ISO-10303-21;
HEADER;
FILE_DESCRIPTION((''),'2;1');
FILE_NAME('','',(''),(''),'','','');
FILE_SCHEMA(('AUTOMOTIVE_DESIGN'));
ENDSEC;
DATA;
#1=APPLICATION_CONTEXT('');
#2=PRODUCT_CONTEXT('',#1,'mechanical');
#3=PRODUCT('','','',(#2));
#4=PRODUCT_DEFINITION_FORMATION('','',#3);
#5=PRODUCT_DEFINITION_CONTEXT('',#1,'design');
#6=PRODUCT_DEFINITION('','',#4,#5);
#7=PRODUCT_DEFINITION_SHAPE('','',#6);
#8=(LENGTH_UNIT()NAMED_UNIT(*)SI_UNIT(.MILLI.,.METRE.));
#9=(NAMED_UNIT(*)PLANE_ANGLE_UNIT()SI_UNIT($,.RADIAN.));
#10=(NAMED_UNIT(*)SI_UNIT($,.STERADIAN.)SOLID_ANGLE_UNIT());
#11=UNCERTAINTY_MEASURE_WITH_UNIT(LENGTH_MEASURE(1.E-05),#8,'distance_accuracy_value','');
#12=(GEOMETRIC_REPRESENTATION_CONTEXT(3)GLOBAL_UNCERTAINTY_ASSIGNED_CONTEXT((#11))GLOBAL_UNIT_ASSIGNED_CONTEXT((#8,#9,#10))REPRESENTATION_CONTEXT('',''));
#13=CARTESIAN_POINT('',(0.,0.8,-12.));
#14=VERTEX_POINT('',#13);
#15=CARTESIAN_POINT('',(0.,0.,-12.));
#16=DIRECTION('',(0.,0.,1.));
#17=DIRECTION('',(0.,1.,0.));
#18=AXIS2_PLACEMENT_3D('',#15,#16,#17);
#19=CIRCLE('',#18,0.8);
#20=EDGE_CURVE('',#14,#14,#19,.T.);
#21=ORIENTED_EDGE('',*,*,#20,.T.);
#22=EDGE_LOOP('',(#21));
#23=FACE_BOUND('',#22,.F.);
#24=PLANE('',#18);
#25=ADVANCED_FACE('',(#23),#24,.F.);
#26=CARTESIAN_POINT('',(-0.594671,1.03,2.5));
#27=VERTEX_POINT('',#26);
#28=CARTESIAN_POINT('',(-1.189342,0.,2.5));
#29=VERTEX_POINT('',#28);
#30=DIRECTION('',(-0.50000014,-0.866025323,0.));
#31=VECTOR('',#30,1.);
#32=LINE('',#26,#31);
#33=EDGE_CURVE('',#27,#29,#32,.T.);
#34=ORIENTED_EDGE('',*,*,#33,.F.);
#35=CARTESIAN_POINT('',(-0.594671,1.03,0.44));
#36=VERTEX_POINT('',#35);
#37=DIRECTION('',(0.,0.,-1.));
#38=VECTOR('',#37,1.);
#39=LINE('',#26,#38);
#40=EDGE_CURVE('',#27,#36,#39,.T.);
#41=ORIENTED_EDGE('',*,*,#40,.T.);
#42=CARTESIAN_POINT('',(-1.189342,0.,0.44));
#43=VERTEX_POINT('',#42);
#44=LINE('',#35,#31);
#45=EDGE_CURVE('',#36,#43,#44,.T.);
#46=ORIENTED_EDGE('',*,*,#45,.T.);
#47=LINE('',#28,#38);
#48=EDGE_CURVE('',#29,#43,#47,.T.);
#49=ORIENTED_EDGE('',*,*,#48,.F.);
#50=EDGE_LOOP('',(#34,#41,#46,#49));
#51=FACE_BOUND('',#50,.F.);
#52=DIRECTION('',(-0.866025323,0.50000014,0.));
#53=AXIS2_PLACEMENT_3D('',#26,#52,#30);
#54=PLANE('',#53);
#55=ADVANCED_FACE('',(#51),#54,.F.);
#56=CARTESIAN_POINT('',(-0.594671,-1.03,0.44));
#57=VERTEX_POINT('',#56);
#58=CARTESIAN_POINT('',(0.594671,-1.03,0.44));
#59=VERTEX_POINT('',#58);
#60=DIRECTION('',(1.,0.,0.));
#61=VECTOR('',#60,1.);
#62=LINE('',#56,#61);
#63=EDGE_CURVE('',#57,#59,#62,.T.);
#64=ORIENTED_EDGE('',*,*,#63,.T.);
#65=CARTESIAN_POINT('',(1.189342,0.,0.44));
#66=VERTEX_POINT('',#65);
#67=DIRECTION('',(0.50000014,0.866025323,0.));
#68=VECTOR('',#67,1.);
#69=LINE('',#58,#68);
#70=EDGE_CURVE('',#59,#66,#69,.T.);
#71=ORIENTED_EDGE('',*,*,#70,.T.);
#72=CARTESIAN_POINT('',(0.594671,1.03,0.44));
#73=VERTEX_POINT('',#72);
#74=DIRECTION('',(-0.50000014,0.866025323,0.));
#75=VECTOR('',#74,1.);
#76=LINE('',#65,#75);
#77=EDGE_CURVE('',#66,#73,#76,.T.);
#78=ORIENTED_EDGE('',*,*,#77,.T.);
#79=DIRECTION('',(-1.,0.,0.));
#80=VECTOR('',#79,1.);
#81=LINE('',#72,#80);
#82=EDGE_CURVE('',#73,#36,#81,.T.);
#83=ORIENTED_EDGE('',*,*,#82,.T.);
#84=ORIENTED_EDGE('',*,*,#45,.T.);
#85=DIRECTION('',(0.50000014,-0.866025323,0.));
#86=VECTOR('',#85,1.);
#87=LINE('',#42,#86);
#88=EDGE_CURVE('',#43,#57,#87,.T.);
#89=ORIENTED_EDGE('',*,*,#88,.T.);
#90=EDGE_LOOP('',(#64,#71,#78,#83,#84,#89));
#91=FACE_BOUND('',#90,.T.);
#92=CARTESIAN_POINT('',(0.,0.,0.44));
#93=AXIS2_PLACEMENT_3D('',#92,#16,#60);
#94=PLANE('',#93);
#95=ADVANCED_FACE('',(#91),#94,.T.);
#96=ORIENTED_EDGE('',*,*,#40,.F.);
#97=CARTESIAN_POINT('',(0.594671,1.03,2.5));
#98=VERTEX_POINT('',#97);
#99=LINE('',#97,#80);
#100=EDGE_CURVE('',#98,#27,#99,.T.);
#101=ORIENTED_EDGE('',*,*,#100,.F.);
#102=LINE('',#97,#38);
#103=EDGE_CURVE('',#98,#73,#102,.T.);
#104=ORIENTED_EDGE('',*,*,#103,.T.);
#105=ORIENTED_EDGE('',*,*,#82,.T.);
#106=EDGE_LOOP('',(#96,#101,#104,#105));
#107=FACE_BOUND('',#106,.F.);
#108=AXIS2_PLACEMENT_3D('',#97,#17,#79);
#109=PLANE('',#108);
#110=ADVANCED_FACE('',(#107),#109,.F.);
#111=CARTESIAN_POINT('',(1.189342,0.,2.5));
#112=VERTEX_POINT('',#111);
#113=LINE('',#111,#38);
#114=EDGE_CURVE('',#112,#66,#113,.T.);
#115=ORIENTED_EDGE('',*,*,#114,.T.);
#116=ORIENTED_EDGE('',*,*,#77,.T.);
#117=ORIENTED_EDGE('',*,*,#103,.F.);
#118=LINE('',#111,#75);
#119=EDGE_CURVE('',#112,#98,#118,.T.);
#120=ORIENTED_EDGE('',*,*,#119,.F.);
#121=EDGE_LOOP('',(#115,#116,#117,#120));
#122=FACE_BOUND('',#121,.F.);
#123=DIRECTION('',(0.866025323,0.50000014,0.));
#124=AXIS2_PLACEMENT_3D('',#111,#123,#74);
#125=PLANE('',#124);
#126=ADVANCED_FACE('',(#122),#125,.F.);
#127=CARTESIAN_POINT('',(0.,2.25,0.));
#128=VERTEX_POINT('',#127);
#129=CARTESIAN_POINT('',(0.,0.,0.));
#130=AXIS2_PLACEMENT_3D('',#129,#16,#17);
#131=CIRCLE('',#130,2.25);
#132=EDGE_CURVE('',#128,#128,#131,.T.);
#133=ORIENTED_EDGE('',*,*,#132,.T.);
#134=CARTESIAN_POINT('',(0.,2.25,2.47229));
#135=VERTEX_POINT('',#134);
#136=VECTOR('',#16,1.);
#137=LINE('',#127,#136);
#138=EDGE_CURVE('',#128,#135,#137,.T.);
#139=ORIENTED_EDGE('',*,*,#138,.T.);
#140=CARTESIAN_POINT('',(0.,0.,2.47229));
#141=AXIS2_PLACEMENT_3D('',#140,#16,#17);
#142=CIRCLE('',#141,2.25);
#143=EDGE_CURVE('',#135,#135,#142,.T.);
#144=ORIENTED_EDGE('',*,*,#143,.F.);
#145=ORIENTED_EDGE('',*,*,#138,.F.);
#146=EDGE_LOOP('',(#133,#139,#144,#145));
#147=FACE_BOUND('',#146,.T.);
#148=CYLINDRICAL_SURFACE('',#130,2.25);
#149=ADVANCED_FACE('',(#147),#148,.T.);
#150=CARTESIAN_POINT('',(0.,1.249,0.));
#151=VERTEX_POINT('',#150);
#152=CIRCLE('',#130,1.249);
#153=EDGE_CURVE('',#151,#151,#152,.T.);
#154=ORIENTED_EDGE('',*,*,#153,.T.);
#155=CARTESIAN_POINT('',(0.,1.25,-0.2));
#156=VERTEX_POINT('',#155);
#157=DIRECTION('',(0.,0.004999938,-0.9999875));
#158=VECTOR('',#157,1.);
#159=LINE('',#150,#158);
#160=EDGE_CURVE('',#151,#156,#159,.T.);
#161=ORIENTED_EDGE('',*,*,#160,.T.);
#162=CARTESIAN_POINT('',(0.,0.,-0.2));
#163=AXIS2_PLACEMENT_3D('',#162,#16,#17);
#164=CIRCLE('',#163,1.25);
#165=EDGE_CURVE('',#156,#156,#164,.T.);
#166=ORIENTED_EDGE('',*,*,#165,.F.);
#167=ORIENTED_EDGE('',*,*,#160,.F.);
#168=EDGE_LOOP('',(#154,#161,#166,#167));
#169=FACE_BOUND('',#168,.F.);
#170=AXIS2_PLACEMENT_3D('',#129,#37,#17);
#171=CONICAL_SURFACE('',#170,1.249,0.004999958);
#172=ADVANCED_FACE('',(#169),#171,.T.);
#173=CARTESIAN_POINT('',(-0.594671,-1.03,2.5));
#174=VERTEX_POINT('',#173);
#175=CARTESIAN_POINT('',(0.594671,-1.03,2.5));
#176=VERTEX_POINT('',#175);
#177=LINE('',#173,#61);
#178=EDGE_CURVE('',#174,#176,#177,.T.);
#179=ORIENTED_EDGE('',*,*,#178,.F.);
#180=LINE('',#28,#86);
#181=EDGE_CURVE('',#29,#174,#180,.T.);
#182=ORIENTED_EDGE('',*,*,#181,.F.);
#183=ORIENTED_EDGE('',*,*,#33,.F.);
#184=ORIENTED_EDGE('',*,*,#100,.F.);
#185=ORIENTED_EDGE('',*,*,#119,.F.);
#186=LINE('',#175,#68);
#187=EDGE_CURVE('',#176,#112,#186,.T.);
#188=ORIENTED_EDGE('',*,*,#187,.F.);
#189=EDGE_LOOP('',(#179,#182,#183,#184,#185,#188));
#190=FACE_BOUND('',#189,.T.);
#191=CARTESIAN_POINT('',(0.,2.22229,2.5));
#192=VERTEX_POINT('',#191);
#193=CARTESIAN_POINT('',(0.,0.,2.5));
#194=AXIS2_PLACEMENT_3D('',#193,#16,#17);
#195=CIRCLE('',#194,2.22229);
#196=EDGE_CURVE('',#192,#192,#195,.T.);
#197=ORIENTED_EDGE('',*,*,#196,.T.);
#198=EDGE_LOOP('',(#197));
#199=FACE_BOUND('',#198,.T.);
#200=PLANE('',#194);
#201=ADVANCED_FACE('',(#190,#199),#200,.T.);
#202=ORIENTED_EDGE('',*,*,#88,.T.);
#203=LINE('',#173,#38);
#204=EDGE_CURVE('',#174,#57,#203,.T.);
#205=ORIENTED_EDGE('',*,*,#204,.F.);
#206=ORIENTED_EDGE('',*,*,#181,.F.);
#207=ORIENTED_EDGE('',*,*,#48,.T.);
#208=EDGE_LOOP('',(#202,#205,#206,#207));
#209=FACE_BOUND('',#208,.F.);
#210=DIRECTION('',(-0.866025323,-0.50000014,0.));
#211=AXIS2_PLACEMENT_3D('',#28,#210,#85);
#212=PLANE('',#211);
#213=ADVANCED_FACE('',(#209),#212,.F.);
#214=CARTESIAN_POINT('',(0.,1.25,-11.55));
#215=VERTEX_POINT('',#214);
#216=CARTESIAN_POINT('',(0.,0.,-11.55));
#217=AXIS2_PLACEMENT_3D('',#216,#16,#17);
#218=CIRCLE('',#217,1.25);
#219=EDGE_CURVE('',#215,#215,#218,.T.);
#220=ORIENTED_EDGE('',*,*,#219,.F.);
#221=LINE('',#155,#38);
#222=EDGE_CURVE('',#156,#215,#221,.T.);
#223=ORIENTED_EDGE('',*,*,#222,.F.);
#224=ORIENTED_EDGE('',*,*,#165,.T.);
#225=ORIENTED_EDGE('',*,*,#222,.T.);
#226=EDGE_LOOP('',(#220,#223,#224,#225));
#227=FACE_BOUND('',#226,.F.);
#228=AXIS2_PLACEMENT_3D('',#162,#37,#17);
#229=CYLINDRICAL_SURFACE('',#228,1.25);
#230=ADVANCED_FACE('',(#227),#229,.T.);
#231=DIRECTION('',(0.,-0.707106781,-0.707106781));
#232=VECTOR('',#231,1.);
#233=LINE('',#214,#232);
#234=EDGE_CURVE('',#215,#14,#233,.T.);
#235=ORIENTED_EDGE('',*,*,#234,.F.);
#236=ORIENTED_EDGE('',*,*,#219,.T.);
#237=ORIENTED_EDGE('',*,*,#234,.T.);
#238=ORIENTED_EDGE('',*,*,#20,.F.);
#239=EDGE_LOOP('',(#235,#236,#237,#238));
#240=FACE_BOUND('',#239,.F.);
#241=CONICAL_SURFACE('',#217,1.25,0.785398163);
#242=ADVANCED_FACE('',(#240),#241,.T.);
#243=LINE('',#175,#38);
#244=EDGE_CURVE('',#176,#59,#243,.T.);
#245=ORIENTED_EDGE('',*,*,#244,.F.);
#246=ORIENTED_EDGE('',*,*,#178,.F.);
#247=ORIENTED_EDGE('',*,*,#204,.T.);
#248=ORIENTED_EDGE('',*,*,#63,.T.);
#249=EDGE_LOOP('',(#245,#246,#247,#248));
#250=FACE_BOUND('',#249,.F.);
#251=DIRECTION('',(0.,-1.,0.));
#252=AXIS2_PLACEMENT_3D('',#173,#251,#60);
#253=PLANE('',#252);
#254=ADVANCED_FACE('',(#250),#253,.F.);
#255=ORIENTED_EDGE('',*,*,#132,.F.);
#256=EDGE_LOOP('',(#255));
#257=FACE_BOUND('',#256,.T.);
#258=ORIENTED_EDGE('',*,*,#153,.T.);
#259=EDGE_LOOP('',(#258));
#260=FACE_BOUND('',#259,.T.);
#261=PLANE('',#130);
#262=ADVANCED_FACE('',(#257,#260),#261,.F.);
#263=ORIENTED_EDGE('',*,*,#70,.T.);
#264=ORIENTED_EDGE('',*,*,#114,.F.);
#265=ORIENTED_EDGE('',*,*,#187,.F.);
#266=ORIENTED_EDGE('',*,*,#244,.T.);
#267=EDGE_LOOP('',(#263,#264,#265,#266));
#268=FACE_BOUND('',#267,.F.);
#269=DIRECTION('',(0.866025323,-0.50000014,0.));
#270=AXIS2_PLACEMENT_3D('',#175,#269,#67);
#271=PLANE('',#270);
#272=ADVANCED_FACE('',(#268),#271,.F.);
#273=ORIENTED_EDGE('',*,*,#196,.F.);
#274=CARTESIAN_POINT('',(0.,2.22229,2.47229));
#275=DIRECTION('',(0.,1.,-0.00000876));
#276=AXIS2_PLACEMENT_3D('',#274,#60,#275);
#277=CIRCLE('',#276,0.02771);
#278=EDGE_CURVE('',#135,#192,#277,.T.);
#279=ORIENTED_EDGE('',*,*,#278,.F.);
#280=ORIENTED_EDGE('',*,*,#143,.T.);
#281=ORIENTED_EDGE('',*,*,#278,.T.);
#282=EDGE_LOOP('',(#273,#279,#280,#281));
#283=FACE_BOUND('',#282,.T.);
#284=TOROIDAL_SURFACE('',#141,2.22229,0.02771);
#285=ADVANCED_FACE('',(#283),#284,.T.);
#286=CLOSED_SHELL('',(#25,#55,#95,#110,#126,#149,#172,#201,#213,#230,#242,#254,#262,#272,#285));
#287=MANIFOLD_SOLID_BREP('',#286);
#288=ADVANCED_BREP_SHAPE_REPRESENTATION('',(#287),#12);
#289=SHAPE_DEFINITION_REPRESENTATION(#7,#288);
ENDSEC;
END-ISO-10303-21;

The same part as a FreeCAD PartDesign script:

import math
import FreeCAD as App
import Part
import Sketcher

V = App.Vector
Q = App.Units.Quantity


def add_polygon(sketch, points):
    """Adds a closed chain of lines whose ends are joined by coincident constraints."""
    first, n = sketch.GeometryCount, len(points)
    for a, b in zip(points, points[1:] + points[:1]):
        sketch.addGeometry(Part.LineSegment(App.Vector(*a, 0), App.Vector(*b, 0)), False)
    for i in range(n):
        sketch.addConstraint(Sketcher.Constraint("Coincident", first + i, 2, first + (i + 1) % n, 1))

doc = App.newDocument("Part")
params = doc.addObject("Spreadsheet::Sheet", "Params")
for row, (alias, value) in enumerate([
    ("sketch1_width", "0.8 mm"),
    ("sketch1_height", "14.5 mm"),
    ("sketch1_height2", "11.35 mm"),
    ("revolution_angle", "360 deg"),
    ("pocket1_length", "2.06 mm"),
], start=1):
    params.set(f"A{row}", alias)
    params.set(f"B{row}", "=" + value)
    params.setAlias(f"B{row}", alias)

body = doc.addObject("PartDesign::Body", "Body")

# Sketch on YZ plane
sketch1 = doc.addObject("Sketcher::SketchObject", "Sketch")
body.addObject(sketch1)
sketch1.AttachmentSupport = (doc.YZ_Plane, [""])
sketch1.MapMode = "FlatFace"
sketch1.addGeometry(Part.LineSegment(V(1.249, 0, 0), V(2.25, 0, 0)), False)
sketch1.addGeometry(Part.LineSegment(V(2.25, 0, 0), V(2.25, 2.472, 0)), False)
sketch1.addGeometry(Part.ArcOfCircle(Part.Circle(V(2.222, 2.472, 0), V(0, 0, 1), 0.028), math.radians(0), math.radians(90)), False)
sketch1.addGeometry(Part.LineSegment(V(2.222, 2.5, 0), V(0, 2.5, 0)), False)
sketch1.addGeometry(Part.LineSegment(V(0, 2.5, 0), V(0, -12, 0)), False)
sketch1.addGeometry(Part.LineSegment(V(0, -12, 0), V(0.8, -12, 0)), False)
sketch1.addGeometry(Part.LineSegment(V(0.8, -12, 0), V(1.25, -11.55, 0)), False)
sketch1.addGeometry(Part.LineSegment(V(1.25, -11.55, 0), V(1.25, -0.2, 0)), False)
sketch1.addGeometry(Part.LineSegment(V(1.25, -0.2, 0), V(1.249, 0, 0)), False)
sketch1.addConstraint(Sketcher.Constraint("Coincident", 0, 2, 1, 1))
sketch1.addConstraint(Sketcher.Constraint("Coincident", 1, 2, 2, 1))
sketch1.addConstraint(Sketcher.Constraint("Coincident", 2, 2, 3, 1))
sketch1.addConstraint(Sketcher.Constraint("Coincident", 3, 2, 4, 1))
sketch1.addConstraint(Sketcher.Constraint("Coincident", 4, 2, 5, 1))
sketch1.addConstraint(Sketcher.Constraint("Coincident", 5, 2, 6, 1))
sketch1.addConstraint(Sketcher.Constraint("Coincident", 6, 2, 7, 1))
sketch1.addConstraint(Sketcher.Constraint("Coincident", 7, 2, 8, 1))
sketch1.addConstraint(Sketcher.Constraint("Coincident", 8, 2, 0, 1))
sketch1.addConstraint(Sketcher.Constraint("Horizontal", 0))
sketch1.addConstraint(Sketcher.Constraint("Vertical", 1))
sketch1.addConstraint(Sketcher.Constraint("Horizontal", 3))
sketch1.addConstraint(Sketcher.Constraint("Vertical", 4))
sketch1.addConstraint(Sketcher.Constraint("Horizontal", 5))
sketch1.addConstraint(Sketcher.Constraint("Vertical", 7))
sketch1.addConstraint(Sketcher.Constraint("PointOnObject", 0, 2, -1))
sketch1.addConstraint(Sketcher.Constraint("PointOnObject", 3, 2, -2))
sketch1.addConstraint(Sketcher.Constraint("Horizontal", 2, 3, 1, 2))
sketch1.addConstraint(Sketcher.Constraint("Angle", 6, Q("45 deg")))
sketch1.addConstraint(Sketcher.Constraint("DistanceX", 5, 1, 5, 2, Q("0.8 mm")))
sketch1.addConstraint(Sketcher.Constraint("DistanceY", 4, 2, 4, 1, Q("14.5 mm")))
sketch1.addConstraint(Sketcher.Constraint("DistanceY", 4, 2, -1, 1, Q("12 mm")))
sketch1.addConstraint(Sketcher.Constraint("DistanceX", 6, 2, 0, 2, Q("1 mm")))
sketch1.addConstraint(Sketcher.Constraint("DistanceY", 7, 1, 7, 2, Q("11.35 mm")))
sketch1.addConstraint(Sketcher.Constraint("DistanceY", 7, 2, -1, 1, Q("0.2 mm")))
sketch1.addConstraint(Sketcher.Constraint("DistanceX", 0, 1, 0, 2, Q("1.001 mm")))
sketch1.addConstraint(Sketcher.Constraint("Radius", 2, Q("0.02771 mm")))
sketch1.addConstraint(Sketcher.Constraint("DistanceX", 3, 2, 3, 1, Q("2.22229 mm")))
sketch1.setExpression("Constraints[19]", "Params.sketch1_width")
sketch1.setExpression("Constraints[20]", "Params.sketch1_height")
sketch1.setExpression("Constraints[23]", "Params.sketch1_height2")
revolution = doc.addObject("PartDesign::Revolution", "Revolution")
body.addObject(revolution)
revolution.Profile = sketch1
revolution.ReferenceAxis = (sketch1, ["V_Axis"])
revolution.setExpression("Angle", "Params.revolution_angle")

# Sketch on XY plane
sketch2 = doc.addObject("Sketcher::SketchObject", "Sketch001")
body.addObject(sketch2)
sketch2.AttachmentSupport = (doc.XY_Plane, [""])
sketch2.MapMode = "FlatFace"
sketch2.AttachmentOffset = App.Placement(V(0, 0, 2.5), App.Rotation())
add_polygon(sketch2, [(1.2, 0), (0.6, 1), (-0.6, 1), (-1.2, 0), (-0.6, -1), (0.6, -1)])  # lines 0-5
sketch2.addConstraint(Sketcher.Constraint("Horizontal", 1))
sketch2.addConstraint(Sketcher.Constraint("Horizontal", 4))
sketch2.addConstraint(Sketcher.Constraint("Symmetric", 0, 2, 3, 2, -1, 1))
sketch2.addConstraint(Sketcher.Constraint("Symmetric", 2, 2, 5, 2, -1, 1))
sketch2.addConstraint(Sketcher.Constraint("PointOnObject", 2, 2, -1))
sketch2.addConstraint(Sketcher.Constraint("Parallel", 2, 5))
sketch2.addConstraint(Sketcher.Constraint("Vertical", 1, 2, 3, 2))
sketch2.addConstraint(Sketcher.Constraint("Angle", 0, Q("120.000009 deg")))
sketch2.addConstraint(Sketcher.Constraint("DistanceY", -1, 1, 0, 2, Q("1.03 mm")))
sketch2.addConstraint(Sketcher.Constraint("DistanceX", 1, 2, 1, 1, Q("1.189342 mm")))
pocket1 = doc.addObject("PartDesign::Pocket", "Pocket")
body.addObject(pocket1)
pocket1.Profile = sketch2
pocket1.setExpression("Length", "Params.pocket1_length")

doc.recompute()
